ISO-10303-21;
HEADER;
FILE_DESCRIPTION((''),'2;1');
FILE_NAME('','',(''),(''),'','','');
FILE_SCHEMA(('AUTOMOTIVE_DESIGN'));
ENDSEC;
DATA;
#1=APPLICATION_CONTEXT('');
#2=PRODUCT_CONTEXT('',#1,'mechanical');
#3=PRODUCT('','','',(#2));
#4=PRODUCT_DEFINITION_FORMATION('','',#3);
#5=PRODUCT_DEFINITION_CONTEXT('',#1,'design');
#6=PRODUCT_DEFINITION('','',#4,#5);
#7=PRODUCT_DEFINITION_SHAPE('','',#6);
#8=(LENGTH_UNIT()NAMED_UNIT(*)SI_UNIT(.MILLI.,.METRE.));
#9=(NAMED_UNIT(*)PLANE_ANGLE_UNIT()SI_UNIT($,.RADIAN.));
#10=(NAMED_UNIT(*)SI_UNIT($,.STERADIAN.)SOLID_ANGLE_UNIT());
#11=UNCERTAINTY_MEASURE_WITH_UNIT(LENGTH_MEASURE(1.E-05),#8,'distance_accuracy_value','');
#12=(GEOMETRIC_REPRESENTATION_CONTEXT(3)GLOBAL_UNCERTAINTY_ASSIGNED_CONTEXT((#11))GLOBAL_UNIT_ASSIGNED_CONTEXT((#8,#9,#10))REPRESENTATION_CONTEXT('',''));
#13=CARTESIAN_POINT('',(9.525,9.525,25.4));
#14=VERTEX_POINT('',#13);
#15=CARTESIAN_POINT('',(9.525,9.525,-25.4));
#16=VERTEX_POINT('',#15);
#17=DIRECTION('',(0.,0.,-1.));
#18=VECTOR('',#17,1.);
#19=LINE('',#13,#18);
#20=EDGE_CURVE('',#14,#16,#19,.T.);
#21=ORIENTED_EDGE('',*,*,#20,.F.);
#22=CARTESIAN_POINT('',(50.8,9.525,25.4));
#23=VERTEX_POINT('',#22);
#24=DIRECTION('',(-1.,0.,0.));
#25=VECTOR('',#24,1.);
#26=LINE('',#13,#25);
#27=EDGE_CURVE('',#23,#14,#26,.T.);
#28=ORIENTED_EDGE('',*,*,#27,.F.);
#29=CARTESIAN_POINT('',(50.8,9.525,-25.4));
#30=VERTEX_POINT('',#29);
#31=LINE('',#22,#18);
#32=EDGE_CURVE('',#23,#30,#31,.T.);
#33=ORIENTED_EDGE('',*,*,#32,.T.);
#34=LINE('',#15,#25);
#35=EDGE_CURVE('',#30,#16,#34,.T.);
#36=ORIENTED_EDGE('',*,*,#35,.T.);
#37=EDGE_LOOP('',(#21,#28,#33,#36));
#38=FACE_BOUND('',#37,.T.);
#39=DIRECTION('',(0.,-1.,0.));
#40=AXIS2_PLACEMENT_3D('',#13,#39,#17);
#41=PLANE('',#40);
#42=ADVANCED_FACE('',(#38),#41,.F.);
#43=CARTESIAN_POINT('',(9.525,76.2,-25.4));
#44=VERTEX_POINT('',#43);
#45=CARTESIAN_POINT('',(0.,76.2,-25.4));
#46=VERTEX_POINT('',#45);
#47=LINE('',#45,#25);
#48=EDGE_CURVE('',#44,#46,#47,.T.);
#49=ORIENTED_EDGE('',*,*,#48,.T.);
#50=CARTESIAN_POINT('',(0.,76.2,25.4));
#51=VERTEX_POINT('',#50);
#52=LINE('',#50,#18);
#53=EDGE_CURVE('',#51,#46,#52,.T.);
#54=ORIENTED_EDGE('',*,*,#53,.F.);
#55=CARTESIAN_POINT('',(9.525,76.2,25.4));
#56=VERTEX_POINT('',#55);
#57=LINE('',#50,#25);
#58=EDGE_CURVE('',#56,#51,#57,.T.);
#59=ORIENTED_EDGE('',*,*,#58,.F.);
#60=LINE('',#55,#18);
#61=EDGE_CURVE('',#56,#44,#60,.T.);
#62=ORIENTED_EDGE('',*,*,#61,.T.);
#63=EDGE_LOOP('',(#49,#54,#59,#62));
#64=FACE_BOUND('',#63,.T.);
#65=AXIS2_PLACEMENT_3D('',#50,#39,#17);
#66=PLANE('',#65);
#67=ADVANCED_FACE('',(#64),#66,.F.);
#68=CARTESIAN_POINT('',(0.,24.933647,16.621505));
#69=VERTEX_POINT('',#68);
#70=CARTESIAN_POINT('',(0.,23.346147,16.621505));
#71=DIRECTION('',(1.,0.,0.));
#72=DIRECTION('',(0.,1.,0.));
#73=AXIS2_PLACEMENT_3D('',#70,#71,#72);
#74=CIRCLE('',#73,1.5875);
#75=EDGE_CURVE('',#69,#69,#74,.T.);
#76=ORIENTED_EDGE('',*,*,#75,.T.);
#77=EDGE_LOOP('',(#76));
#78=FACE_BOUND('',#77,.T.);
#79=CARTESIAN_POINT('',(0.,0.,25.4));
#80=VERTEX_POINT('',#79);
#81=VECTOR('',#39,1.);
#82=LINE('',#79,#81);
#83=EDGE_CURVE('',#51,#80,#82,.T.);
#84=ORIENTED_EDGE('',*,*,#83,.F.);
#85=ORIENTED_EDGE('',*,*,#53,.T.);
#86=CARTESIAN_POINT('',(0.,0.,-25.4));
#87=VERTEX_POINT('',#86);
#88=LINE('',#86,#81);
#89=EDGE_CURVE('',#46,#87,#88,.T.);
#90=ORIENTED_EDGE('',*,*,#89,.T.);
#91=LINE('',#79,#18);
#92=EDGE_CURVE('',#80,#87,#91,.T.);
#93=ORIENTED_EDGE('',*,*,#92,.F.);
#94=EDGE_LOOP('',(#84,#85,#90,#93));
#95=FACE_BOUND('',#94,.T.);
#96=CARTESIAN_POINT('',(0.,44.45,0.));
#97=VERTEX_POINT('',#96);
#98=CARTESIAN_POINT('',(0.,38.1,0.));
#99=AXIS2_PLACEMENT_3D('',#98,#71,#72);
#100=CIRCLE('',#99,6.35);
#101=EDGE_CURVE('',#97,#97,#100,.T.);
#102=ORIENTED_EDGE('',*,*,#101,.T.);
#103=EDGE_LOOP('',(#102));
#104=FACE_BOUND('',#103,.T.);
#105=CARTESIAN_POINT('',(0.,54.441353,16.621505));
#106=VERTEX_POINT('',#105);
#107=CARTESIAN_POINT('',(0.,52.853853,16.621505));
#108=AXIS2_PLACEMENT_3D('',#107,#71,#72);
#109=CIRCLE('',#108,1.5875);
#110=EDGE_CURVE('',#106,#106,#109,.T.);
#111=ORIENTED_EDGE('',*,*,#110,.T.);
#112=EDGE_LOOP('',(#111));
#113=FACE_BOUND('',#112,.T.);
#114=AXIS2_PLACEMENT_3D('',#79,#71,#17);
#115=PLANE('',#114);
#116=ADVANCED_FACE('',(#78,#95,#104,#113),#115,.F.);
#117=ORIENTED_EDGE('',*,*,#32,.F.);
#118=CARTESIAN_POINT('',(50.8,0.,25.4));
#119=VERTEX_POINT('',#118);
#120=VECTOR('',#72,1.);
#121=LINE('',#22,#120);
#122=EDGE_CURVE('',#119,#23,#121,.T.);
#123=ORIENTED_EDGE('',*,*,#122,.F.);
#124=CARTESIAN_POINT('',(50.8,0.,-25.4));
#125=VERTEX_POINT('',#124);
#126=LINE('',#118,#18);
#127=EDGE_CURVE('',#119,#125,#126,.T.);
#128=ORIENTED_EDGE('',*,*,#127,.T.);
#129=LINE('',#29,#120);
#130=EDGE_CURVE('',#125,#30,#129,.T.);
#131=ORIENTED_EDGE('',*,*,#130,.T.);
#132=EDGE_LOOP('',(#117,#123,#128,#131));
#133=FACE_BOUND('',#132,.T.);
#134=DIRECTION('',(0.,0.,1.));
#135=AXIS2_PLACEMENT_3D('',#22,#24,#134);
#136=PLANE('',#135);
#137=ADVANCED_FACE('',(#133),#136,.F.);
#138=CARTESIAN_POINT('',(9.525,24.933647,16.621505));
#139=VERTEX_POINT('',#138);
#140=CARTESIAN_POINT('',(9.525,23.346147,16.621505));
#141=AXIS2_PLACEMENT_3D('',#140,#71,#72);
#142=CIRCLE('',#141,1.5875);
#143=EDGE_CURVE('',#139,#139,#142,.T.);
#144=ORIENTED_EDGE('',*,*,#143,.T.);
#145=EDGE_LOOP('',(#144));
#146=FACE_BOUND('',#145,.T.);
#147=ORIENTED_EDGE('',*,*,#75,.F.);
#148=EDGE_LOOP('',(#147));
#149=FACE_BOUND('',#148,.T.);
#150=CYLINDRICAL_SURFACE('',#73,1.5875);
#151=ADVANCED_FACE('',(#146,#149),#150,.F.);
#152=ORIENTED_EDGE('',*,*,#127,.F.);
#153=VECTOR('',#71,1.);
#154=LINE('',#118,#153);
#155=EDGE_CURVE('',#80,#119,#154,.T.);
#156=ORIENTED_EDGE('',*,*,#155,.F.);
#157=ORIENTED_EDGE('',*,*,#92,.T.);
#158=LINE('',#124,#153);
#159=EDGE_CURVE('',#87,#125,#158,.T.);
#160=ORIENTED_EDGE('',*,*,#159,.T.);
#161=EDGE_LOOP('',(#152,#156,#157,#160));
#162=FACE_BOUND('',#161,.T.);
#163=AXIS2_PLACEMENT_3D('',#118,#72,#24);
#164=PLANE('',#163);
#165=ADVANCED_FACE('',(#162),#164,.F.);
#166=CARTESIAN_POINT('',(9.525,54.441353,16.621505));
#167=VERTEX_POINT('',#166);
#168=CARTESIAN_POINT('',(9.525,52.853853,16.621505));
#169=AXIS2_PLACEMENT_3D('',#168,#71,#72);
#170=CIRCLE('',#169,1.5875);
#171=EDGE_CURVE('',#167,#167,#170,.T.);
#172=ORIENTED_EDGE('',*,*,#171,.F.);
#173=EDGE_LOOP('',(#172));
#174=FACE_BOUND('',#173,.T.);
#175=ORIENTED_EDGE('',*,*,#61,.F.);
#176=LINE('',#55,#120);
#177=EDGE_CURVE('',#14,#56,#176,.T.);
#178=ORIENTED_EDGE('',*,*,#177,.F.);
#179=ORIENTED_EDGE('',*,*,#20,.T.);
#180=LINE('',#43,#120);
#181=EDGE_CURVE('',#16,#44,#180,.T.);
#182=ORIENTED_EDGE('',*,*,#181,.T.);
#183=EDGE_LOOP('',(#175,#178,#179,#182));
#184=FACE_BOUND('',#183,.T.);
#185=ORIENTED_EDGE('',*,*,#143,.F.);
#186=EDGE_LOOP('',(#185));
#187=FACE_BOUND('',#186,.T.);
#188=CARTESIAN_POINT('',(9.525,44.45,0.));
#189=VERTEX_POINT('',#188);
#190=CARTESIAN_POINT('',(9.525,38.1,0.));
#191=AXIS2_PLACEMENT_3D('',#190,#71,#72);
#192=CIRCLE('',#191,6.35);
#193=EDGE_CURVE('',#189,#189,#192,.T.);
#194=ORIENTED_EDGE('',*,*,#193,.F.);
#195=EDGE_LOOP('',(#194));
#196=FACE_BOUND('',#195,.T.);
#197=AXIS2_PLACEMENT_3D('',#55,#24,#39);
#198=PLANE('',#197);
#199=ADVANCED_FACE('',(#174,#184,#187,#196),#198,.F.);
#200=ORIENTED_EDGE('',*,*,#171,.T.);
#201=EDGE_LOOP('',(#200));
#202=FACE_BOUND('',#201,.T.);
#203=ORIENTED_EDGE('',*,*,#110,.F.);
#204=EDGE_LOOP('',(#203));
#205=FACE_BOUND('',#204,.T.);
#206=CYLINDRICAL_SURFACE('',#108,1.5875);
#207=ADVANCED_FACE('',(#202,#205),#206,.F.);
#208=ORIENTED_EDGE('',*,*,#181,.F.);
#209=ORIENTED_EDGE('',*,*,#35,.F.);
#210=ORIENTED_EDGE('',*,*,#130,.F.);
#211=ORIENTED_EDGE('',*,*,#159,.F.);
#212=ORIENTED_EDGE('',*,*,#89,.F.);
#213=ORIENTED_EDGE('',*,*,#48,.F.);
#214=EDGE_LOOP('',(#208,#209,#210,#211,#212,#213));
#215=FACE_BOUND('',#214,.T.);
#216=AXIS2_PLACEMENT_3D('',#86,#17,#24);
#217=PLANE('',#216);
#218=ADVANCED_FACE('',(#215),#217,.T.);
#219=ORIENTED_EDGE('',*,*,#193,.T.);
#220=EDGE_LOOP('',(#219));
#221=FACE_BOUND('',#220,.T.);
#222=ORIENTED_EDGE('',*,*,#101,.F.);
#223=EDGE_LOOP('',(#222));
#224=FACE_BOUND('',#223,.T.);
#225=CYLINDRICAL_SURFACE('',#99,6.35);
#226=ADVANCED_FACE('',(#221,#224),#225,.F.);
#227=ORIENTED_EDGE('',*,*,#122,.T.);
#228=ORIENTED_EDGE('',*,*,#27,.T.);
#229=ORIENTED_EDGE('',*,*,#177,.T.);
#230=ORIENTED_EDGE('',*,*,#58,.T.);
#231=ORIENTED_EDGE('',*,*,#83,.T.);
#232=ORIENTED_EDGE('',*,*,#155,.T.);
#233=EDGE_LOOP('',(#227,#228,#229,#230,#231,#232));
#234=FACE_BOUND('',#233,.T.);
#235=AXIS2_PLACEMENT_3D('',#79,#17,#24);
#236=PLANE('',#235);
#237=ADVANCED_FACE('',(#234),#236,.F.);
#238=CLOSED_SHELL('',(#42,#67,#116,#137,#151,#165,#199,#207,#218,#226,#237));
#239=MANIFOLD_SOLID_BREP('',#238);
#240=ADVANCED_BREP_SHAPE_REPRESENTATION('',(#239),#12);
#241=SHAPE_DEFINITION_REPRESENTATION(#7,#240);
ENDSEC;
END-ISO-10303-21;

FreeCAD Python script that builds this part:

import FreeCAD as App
import Part
import Sketcher
from FreeCAD import Vector
Q = App.Units.Quantity

doc = App.newDocument("Part")
body = doc.addObject("PartDesign::Body", "Body")

sketch1 = body.newObject("Sketcher::SketchObject", "Sketch")
sketch1.AttachmentSupport = (doc.getObject("XY_Plane"), [""])
sketch1.MapMode = "FlatFace"
sketch1.addGeometry([
    Part.LineSegment(Vector(0, 76, 0), Vector(0, 0, 0)),
    Part.LineSegment(Vector(0, 0, 0), Vector(51, 0, 0)),
    Part.LineSegment(Vector(51, 0, 0), Vector(51, 10, 0)),
    Part.LineSegment(Vector(51, 10, 0), Vector(10, 10, 0)),
    Part.LineSegment(Vector(10, 10, 0), Vector(10, 76, 0)),
    Part.LineSegment(Vector(10, 76, 0), Vector(0, 76, 0)),
], False)
sketch1.addConstraint([
    Sketcher.Constraint("Coincident", 0, 2, 1, 1),
    Sketcher.Constraint("Coincident", 1, 2, 2, 1),
    Sketcher.Constraint("Coincident", 2, 2, 3, 1),
    Sketcher.Constraint("Coincident", 3, 2, 4, 1),
    Sketcher.Constraint("Coincident", 4, 2, 5, 1),
    Sketcher.Constraint("Coincident", 5, 2, 0, 1),
    Sketcher.Constraint("Vertical", 0),
    Sketcher.Constraint("Horizontal", 1),
    Sketcher.Constraint("Vertical", 2),
    Sketcher.Constraint("Horizontal", 3),
    Sketcher.Constraint("Vertical", 4),
    Sketcher.Constraint("Horizontal", 5),
    Sketcher.Constraint("Coincident", 0, 2, -1, 1),
    Sketcher.Constraint("Equal", 5, 2),
    Sketcher.Constraint("DistanceX", 1, 1, 1, 2, Q("2 in")),
    Sketcher.Constraint("DistanceY", 0, 2, 0, 1, Q("3 in")),
    Sketcher.Constraint("DistanceX", 3, 2, 3, 1, Q("1.625 in")),
])
pad1 = body.newObject("PartDesign::Pad", "Pad")
pad1.Profile = sketch1
pad1.Length = Q("2 in")
pad1.Midplane = True

sketch2 = body.newObject("Sketcher::SketchObject", "Sketch001")
sketch2.AttachmentSupport = (doc.getObject("YZ_Plane"), [""])
sketch2.MapMode = "FlatFace"
sketch2.AttachmentOffset = App.Placement(Vector(0, 0, 0.375 * 25.4), App.Rotation())
sketch2.addGeometry(Part.Circle(Vector(38, 0, 0), Vector(0, 0, 1), 6), False)
sketch2.addConstraint([
    Sketcher.Constraint("PointOnObject", 0, 3, -1),
    Sketcher.Constraint("Diameter", 0, Q("0.5 in")),
    Sketcher.Constraint("DistanceX", -1, 1, 0, 3, Q("1.5 in")),
])
pocket1 = body.newObject("PartDesign::Pocket", "Pocket")
pocket1.Profile = sketch2
pocket1.Type = "ThroughAll"

sketch3 = body.newObject("Sketcher::SketchObject", "Sketch002")
sketch3.AttachmentSupport = (doc.getObject("YZ_Plane"), [""])
sketch3.MapMode = "FlatFace"
sketch3.AttachmentOffset = App.Placement(Vector(0, 0, 0.375 * 25.4), App.Rotation())
sketch3.addGeometry([
    Part.Circle(Vector(52.9, 16.6, 0), Vector(0, 0, 1), 1.6),
    Part.Circle(Vector(23.3, 16.6, 0), Vector(0, 0, 1), 1.6),
], False)
sketch3.addConstraint([
    Sketcher.Constraint("Equal", 0, 1),
    Sketcher.Constraint("Horizontal", 0, 3, 1, 3),
    Sketcher.Constraint("Diameter", 0, Q("0.125 in")),
    Sketcher.Constraint("DistanceX", -1, 1, 0, 3, 52.853853),
    Sketcher.Constraint("DistanceY", -1, 1, 0, 3, 16.621505),
    Sketcher.Constraint("DistanceX", -1, 1, 1, 3, 23.346147),
])
pocket2 = body.newObject("PartDesign::Pocket", "Pocket001")
pocket2.Profile = sketch3
pocket2.Type = "ThroughAll"

doc.recompute()
